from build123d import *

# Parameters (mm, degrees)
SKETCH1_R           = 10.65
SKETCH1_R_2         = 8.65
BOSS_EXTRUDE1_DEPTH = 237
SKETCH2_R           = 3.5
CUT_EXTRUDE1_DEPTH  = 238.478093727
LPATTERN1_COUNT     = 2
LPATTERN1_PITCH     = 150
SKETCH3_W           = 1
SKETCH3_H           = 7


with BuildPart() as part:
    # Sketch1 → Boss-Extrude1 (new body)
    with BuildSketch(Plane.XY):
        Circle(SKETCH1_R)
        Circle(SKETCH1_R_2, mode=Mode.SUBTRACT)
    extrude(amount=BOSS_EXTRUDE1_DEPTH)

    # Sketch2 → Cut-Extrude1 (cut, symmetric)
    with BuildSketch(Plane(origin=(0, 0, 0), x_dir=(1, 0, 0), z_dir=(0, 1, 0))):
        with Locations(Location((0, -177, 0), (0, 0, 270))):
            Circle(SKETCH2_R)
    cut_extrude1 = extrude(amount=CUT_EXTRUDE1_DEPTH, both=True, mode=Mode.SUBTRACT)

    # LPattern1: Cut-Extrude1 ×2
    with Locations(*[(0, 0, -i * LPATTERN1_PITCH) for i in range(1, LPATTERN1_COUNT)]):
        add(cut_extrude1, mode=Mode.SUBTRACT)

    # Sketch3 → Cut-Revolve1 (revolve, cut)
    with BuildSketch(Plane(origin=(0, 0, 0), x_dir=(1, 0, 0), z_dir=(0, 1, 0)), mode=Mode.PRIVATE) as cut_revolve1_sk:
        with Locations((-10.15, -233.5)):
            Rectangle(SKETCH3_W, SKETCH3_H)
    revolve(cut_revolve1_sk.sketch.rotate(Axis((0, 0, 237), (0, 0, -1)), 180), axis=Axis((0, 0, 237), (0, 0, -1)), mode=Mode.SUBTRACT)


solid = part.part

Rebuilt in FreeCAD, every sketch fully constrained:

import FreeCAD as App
import Part
import Sketcher

V = App.Vector
Q = App.Units.Quantity


def add_polygon(sketch, points):
    """Adds a closed chain of lines whose ends are joined by coincident constraints."""
    first, n = sketch.GeometryCount, len(points)
    for a, b in zip(points, points[1:] + points[:1]):
        sketch.addGeometry(Part.LineSegment(App.Vector(*a, 0), App.Vector(*b, 0)), False)
    for i in range(n):
        sketch.addConstraint(Sketcher.Constraint("Coincident", first + i, 2, first + (i + 1) % n, 1))

doc = App.newDocument("Part")
body = doc.addObject("PartDesign::Body", "Body")

# Sketch on XY plane
sketch1 = doc.addObject("Sketcher::SketchObject", "Sketch")
body.addObject(sketch1)
sketch1.AttachmentSupport = (doc.XY_Plane, [""])
sketch1.MapMode = "FlatFace"
sketch1.addGeometry([
    Part.Circle(V(0, 0, 0), V(0, 0, 1), 10.65),
    Part.Circle(V(0, 0, 0), V(0, 0, 1), 8.65),
], False)
sketch1.addConstraint([
    Sketcher.Constraint("Coincident", 0, 3, -1, 1),
    Sketcher.Constraint("Coincident", 1, 3, -1, 1),
    Sketcher.Constraint("Diameter", 0, Q("21.3 mm")),
    Sketcher.Constraint("Diameter", 1, Q("17.3 mm")),
])
pad1 = doc.addObject("PartDesign::Pad", "Pad")
body.addObject(pad1)
pad1.Profile = sketch1
pad1.Length = 237

# Sketch on XZ plane
sketch2 = doc.addObject("Sketcher::SketchObject", "Sketch001")
body.addObject(sketch2)
sketch2.AttachmentSupport = (doc.XZ_Plane, [""])
sketch2.MapMode = "FlatFace"
sketch2.addGeometry(Part.Circle(V(0, 177, 0), V(0, 0, 1), 3.5), False)
sketch2.addConstraint([
    Sketcher.Constraint("PointOnObject", 0, 3, -2),
    Sketcher.Constraint("Diameter", 0, Q("7 mm")),
    Sketcher.Constraint("DistanceY", -1, 1, 0, 3, Q("177 mm")),
])
pocket1 = doc.addObject("PartDesign::Pocket", "Pocket")
body.addObject(pocket1)
pocket1.Profile = sketch2
pocket1.Length = 476.956187
pocket1.Midplane = True
doc.recompute()

linearpattern = doc.addObject("PartDesign::LinearPattern", "LinearPattern")
body.addObject(linearpattern)
linearpattern.Originals = [pocket1]
linearpattern.Direction = (doc.Z_Axis, [""])
linearpattern.Mode = "offset"
linearpattern.Offset = 150
linearpattern.Occurrences = 2
linearpattern.Reversed = True
body.Tip = linearpattern

# Sketch on XZ plane
sketch3 = doc.addObject("Sketcher::SketchObject", "Sketch002")
body.addObject(sketch3)
sketch3.AttachmentSupport = (doc.XZ_Plane, [""])
sketch3.MapMode = "FlatFace"
add_polygon(sketch3, [(-10.65, 230), (-10.65, 237), (-9.65, 237), (-9.65, 230)])  # lines 0-3
sketch3.addConstraint([
    Sketcher.Constraint("Vertical", 0),
    Sketcher.Constraint("Horizontal", 1),
    Sketcher.Constraint("Vertical", 2),
    Sketcher.Constraint("Horizontal", 3),
    Sketcher.Constraint("DistanceX", 1, 1, 1, 2, Q("1 mm")),
    Sketcher.Constraint("DistanceY", 0, 1, 0, 2, Q("7 mm")),
    Sketcher.Constraint("DistanceY", -1, 1, 0, 2, Q("237 mm")),
    Sketcher.Constraint("DistanceX", 0, 2, -1, 1, Q("10.65 mm")),
])
groove = doc.addObject("PartDesign::Groove", "Groove")
body.addObject(groove)
groove.Profile = sketch3
groove.ReferenceAxis = (sketch3, ["V_Axis"])
groove.Angle = 360

doc.recompute()
